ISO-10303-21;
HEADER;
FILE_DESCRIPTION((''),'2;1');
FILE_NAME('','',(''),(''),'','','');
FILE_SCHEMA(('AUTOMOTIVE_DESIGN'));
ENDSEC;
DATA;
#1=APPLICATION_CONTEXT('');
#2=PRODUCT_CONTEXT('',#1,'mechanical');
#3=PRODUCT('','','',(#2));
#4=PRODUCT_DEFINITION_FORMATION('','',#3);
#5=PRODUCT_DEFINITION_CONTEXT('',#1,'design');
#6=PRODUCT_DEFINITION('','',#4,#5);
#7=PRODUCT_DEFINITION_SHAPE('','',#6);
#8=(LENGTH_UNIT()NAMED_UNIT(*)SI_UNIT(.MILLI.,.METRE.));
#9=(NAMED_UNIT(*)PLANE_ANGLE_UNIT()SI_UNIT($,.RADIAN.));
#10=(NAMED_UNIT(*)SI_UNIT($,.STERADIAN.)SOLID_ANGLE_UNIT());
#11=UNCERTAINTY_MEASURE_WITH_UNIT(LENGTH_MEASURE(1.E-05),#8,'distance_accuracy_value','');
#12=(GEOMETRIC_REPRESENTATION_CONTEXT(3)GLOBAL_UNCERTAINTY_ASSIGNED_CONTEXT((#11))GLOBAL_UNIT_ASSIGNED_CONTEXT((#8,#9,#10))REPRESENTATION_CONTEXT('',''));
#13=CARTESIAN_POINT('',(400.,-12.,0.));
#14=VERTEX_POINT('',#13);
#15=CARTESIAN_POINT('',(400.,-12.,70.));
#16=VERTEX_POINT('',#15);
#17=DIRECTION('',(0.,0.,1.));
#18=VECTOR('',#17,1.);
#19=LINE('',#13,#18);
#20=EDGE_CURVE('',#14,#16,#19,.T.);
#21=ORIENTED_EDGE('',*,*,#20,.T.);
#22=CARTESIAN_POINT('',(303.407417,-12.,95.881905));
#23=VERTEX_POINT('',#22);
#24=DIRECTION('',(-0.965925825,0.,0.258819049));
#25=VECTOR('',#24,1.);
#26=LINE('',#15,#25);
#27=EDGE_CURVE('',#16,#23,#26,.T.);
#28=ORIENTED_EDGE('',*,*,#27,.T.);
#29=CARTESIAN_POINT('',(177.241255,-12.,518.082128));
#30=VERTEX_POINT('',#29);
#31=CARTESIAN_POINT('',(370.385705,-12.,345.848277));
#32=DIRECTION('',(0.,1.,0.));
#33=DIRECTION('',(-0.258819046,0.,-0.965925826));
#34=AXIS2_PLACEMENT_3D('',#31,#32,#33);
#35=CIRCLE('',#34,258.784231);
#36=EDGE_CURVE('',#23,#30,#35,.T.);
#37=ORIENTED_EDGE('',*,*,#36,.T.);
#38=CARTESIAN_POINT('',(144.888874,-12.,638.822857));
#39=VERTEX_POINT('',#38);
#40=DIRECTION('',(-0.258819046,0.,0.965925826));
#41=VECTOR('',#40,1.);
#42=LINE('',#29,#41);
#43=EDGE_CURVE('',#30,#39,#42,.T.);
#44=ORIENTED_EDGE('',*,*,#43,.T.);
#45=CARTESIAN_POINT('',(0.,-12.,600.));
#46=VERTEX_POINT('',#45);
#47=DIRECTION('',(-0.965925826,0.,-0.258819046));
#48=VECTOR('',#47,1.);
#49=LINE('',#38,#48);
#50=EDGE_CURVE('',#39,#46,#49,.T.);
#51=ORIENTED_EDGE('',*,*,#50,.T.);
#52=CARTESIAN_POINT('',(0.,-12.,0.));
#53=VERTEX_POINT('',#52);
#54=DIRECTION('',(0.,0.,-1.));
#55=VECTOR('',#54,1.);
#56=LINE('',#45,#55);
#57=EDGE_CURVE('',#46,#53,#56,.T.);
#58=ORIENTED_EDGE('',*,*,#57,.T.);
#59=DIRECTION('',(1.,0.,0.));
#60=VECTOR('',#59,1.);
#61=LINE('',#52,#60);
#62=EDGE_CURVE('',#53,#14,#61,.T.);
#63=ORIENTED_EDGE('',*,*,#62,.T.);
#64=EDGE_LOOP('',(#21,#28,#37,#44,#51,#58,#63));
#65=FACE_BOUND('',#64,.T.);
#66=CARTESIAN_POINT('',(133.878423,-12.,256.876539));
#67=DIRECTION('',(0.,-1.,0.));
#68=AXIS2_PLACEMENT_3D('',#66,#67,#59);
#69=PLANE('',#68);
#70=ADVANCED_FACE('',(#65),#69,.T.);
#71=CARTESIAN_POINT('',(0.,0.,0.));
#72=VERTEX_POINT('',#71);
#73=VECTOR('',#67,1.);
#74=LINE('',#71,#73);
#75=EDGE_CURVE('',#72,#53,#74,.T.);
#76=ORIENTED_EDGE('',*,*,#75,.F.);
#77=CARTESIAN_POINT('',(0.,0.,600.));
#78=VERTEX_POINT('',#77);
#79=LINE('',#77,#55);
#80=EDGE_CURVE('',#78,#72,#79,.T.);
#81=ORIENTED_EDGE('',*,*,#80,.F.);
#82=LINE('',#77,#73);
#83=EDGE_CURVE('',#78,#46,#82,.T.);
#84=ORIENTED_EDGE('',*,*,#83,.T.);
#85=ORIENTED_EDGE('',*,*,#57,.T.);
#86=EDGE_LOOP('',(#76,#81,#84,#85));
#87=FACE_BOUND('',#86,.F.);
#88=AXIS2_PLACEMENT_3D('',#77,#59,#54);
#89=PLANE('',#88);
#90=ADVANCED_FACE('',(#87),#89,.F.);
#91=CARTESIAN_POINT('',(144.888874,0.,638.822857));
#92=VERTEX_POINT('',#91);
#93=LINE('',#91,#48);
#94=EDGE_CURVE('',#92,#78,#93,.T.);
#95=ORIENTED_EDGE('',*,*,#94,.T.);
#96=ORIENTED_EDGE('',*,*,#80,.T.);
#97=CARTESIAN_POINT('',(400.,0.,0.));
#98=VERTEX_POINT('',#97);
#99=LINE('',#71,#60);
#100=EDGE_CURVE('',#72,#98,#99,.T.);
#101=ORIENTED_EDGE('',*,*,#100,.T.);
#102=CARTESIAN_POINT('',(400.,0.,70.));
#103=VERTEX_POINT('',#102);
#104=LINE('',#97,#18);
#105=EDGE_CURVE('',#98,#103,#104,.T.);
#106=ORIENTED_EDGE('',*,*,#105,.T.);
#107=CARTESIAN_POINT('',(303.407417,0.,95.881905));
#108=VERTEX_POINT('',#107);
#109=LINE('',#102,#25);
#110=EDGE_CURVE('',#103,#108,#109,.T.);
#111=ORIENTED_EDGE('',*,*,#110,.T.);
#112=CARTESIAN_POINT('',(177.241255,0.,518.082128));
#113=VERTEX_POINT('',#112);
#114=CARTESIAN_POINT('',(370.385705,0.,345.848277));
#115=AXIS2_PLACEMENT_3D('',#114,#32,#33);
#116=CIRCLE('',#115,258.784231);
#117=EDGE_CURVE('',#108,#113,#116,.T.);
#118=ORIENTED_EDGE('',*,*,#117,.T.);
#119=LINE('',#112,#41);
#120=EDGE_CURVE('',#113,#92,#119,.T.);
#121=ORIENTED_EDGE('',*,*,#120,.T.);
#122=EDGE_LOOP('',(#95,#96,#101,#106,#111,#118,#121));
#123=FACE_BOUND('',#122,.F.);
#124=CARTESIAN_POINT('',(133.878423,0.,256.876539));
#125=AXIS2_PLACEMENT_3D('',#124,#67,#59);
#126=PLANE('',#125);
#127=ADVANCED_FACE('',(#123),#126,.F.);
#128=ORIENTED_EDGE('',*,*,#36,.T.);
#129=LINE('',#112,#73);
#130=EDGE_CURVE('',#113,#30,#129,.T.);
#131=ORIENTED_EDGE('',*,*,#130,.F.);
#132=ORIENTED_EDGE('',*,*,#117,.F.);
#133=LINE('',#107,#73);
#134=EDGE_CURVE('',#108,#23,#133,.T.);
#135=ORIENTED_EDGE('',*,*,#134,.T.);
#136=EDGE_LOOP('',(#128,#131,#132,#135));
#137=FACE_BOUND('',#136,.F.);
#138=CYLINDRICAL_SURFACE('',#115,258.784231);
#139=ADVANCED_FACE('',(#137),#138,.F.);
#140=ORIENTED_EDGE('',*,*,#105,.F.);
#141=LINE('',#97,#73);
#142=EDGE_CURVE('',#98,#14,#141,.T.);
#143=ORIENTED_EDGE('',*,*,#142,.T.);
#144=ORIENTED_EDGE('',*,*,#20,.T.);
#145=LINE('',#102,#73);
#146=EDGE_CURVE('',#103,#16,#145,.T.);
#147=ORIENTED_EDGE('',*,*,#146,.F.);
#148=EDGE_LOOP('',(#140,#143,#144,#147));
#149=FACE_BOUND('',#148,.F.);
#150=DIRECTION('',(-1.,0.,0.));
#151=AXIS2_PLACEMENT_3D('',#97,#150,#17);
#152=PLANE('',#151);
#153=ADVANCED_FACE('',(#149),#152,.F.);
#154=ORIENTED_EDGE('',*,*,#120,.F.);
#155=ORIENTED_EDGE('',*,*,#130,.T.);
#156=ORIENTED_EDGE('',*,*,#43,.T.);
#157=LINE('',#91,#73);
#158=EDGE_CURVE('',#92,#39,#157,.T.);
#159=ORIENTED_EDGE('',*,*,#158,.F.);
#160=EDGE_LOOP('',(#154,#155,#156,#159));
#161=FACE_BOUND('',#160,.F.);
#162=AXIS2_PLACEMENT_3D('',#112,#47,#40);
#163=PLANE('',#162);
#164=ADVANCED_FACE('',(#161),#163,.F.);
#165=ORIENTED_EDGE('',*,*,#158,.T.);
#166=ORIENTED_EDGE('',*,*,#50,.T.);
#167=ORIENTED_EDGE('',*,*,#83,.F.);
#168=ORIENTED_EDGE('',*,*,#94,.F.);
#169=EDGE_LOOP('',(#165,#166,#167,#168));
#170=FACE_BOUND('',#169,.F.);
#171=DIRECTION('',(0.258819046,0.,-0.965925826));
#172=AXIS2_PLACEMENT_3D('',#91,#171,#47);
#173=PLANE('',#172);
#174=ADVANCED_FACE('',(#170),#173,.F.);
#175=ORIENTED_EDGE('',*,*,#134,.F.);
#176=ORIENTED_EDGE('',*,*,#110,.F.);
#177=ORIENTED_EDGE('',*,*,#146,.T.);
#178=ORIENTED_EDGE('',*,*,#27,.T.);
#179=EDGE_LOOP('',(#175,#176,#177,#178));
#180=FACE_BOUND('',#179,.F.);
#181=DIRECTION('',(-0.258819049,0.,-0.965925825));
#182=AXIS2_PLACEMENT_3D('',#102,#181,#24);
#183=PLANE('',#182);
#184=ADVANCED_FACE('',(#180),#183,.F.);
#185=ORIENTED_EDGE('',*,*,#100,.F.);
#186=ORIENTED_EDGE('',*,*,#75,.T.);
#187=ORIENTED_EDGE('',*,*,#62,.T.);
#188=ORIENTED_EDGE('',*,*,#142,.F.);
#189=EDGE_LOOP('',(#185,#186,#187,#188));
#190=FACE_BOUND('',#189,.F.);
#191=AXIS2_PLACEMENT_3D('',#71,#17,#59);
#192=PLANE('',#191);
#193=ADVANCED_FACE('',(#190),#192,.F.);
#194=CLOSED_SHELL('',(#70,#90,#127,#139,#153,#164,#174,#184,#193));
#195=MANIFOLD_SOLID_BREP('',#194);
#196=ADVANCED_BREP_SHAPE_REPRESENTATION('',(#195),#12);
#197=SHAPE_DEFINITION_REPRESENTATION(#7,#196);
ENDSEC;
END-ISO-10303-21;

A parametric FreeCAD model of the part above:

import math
import FreeCAD as App
import Part
import Sketcher

V = App.Vector
Q = App.Units.Quantity

doc = App.newDocument("Part")
body = doc.addObject("PartDesign::Body", "Body")

# Sketch on XZ plane
sketch1 = doc.addObject("Sketcher::SketchObject", "Sketch")
body.addObject(sketch1)
sketch1.AttachmentSupport = (doc.XZ_Plane, [""])
sketch1.MapMode = "FlatFace"
sketch1.addGeometry([
    Part.LineSegment(V(0, 600, 0), V(0, 0, 0)),  # 0
    Part.LineSegment(V(0, 0, 0), V(400, 0, 0)),  # 1
    Part.LineSegment(V(400, 0, 0), V(400, 70, 0)),  # 2
    Part.LineSegment(V(400, 70, 0), V(303, 96, 0)),  # 3
    Part.ArcOfCircle(Part.Circle(V(370, 346, 0), V(0, 0, 1), 259), math.radians(138), math.radians(255)),  # 4
    Part.LineSegment(V(177, 518, 0), V(145, 639, 0)),  # 5
    Part.LineSegment(V(145, 639, 0), V(0, 600, 0)),  # 6
], False)
sketch1.addConstraint([
    Sketcher.Constraint("Coincident", 0, 2, 1, 1),
    Sketcher.Constraint("Coincident", 1, 2, 2, 1),
    Sketcher.Constraint("Coincident", 2, 2, 3, 1),
    Sketcher.Constraint("Tangent", 3, 2, 4, 2),
    Sketcher.Constraint("Coincident", 4, 1, 5, 1),
    Sketcher.Constraint("Coincident", 5, 2, 6, 1),
    Sketcher.Constraint("Coincident", 6, 2, 0, 1),
    Sketcher.Constraint("Vertical", 0),
    Sketcher.Constraint("Horizontal", 1),
    Sketcher.Constraint("Vertical", 2),
    Sketcher.Constraint("Coincident", 0, 2, -1, 1),
    Sketcher.Constraint("Perpendicular", 5, 6),
    Sketcher.Constraint("DistanceX", 1, 1, 1, 2, 400.0),
    Sketcher.Constraint("DistanceY", 0, 2, 0, 1, 600.0),
    Sketcher.Constraint("DistanceY", 2, 1, 2, 2, 70.0),
    Sketcher.Constraint("Angle", 3, Q("165 deg")),
    Sketcher.Constraint("Angle", 5, Q("105 deg")),
    Sketcher.Constraint("Distance", 3, 100.0),
    Sketcher.Constraint("Distance", 5, 125.000001),
    Sketcher.Constraint("Distance", 6, 150.0),
])
pad1 = doc.addObject("PartDesign::Pad", "Pad")
body.addObject(pad1)
pad1.Profile = sketch1
pad1.Length = 12

doc.recompute()
